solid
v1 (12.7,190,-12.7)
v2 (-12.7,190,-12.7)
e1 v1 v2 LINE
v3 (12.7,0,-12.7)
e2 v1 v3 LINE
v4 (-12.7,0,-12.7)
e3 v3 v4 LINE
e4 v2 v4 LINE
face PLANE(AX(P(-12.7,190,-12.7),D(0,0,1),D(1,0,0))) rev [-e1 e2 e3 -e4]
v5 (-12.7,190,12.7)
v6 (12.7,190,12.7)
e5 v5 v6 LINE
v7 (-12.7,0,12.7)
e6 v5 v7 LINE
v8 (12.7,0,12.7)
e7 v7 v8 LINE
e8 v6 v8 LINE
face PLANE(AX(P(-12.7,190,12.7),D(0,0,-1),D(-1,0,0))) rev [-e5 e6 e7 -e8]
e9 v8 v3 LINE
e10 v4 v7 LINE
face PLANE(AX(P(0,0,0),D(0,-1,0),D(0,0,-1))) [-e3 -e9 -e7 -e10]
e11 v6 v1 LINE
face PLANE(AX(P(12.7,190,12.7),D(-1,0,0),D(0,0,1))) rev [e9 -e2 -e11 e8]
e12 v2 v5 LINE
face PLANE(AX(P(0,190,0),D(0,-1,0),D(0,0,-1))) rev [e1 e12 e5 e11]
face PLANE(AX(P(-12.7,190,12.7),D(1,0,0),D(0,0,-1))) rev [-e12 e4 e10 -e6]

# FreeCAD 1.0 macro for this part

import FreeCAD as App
import Part
import Sketcher
from FreeCAD import Vector
Q = App.Units.Quantity


def add_polygon(sketch, points):
    """Adds a closed chain of lines whose ends are joined by coincident constraints."""
    first, n = sketch.GeometryCount, len(points)
    for a, b in zip(points, points[1:] + points[:1]):
        sketch.addGeometry(Part.LineSegment(App.Vector(*a, 0), App.Vector(*b, 0)), False)
    for i in range(n):
        sketch.addConstraint(Sketcher.Constraint("Coincident", first + i, 2, first + (i + 1) % n, 1))

doc = App.newDocument("Part")
body = doc.addObject("PartDesign::Body", "Body")

# Sketch on XZ plane
sketch1 = doc.addObject("Sketcher::SketchObject", "Sketch")
body.addObject(sketch1)
sketch1.AttachmentSupport = (doc.XZ_Plane, [""])
sketch1.MapMode = "FlatFace"
add_polygon(sketch1, [(-12.7, -12.7), (-12.7, 12.7), (12.7, 12.7), (12.7, -12.7)])  # lines 0-3
sketch1.addConstraint(Sketcher.Constraint("Vertical", 0))
sketch1.addConstraint(Sketcher.Constraint("Horizontal", 1))
sketch1.addConstraint(Sketcher.Constraint("Vertical", 2))
sketch1.addConstraint(Sketcher.Constraint("Horizontal", 3))
sketch1.addConstraint(Sketcher.Constraint("Symmetric", 0, 2, 2, 2, -1, 1))
sketch1.addConstraint(Sketcher.Constraint("Equal", 3, 0))
sketch1.addConstraint(Sketcher.Constraint("DistanceX", 1, 1, 1, 2, Q("25.4 mm")))
pad1 = doc.addObject("PartDesign::Pad", "Pad")
body.addObject(pad1)
pad1.Profile = sketch1
pad1.Length = 190
pad1.Reversed = True

doc.recompute()
